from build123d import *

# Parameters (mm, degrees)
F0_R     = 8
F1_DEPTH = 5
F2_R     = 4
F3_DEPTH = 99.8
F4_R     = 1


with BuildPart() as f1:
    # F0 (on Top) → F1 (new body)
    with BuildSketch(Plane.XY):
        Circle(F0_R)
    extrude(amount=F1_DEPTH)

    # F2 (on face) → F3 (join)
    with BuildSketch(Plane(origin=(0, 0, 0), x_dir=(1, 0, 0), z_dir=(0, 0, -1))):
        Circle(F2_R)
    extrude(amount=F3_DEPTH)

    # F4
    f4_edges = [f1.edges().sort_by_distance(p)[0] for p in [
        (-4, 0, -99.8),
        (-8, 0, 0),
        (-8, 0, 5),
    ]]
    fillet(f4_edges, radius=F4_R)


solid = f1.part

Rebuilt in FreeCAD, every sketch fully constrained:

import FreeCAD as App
import Part
import Sketcher
from FreeCAD import Vector


def edges_at(feature, points):
    """Names of the edges that pass closest to the given points."""
    edges = feature.Shape.Edges
    near = lambda p: min(range(len(edges)), key=lambda i: edges[i].distToShape(Part.Vertex(*p))[0])
    return sorted({f"Edge{near(p) + 1}" for p in points})

doc = App.newDocument("Part")
body = doc.addObject("PartDesign::Body", "Body")

sketch1 = body.newObject("Sketcher::SketchObject", "Sketch")
sketch1.AttachmentSupport = (doc.getObject("XY_Plane"), [""])
sketch1.MapMode = "FlatFace"
sketch1.addGeometry(Part.Circle(Vector(0, 0, 0), Vector(0, 0, 1), 8), False)
sketch1.addConstraint([
    Sketcher.Constraint("Coincident", 0, 3, -1, 1),
    Sketcher.Constraint("Diameter", 0, 16.0),
])
pad1 = body.newObject("PartDesign::Pad", "Pad")
pad1.Profile = sketch1
pad1.Length = 5

sketch2 = body.newObject("Sketcher::SketchObject", "Sketch001")
sketch2.AttachmentSupport = (doc.getObject("XY_Plane"), [""])
sketch2.MapMode = "FlatFace"
sketch2.addGeometry(Part.Circle(Vector(0, 0, 0), Vector(0, 0, 1), 4), False)
sketch2.addConstraint([
    Sketcher.Constraint("Coincident", 0, 3, -1, 1),
    Sketcher.Constraint("Diameter", 0, 8.0),
])
pad2 = body.newObject("PartDesign::Pad", "Pad001")
pad2.Profile = sketch2
pad2.Length = 99.8
pad2.Reversed = True
doc.recompute()

fillet = body.newObject("PartDesign::Fillet", "Fillet")
fillet.Base = (pad2, edges_at(pad2, [(-4, 0, -99.8), (-8, 0, 0), (-8, 0, 5)]))
fillet.Radius = 1

doc.recompute()
